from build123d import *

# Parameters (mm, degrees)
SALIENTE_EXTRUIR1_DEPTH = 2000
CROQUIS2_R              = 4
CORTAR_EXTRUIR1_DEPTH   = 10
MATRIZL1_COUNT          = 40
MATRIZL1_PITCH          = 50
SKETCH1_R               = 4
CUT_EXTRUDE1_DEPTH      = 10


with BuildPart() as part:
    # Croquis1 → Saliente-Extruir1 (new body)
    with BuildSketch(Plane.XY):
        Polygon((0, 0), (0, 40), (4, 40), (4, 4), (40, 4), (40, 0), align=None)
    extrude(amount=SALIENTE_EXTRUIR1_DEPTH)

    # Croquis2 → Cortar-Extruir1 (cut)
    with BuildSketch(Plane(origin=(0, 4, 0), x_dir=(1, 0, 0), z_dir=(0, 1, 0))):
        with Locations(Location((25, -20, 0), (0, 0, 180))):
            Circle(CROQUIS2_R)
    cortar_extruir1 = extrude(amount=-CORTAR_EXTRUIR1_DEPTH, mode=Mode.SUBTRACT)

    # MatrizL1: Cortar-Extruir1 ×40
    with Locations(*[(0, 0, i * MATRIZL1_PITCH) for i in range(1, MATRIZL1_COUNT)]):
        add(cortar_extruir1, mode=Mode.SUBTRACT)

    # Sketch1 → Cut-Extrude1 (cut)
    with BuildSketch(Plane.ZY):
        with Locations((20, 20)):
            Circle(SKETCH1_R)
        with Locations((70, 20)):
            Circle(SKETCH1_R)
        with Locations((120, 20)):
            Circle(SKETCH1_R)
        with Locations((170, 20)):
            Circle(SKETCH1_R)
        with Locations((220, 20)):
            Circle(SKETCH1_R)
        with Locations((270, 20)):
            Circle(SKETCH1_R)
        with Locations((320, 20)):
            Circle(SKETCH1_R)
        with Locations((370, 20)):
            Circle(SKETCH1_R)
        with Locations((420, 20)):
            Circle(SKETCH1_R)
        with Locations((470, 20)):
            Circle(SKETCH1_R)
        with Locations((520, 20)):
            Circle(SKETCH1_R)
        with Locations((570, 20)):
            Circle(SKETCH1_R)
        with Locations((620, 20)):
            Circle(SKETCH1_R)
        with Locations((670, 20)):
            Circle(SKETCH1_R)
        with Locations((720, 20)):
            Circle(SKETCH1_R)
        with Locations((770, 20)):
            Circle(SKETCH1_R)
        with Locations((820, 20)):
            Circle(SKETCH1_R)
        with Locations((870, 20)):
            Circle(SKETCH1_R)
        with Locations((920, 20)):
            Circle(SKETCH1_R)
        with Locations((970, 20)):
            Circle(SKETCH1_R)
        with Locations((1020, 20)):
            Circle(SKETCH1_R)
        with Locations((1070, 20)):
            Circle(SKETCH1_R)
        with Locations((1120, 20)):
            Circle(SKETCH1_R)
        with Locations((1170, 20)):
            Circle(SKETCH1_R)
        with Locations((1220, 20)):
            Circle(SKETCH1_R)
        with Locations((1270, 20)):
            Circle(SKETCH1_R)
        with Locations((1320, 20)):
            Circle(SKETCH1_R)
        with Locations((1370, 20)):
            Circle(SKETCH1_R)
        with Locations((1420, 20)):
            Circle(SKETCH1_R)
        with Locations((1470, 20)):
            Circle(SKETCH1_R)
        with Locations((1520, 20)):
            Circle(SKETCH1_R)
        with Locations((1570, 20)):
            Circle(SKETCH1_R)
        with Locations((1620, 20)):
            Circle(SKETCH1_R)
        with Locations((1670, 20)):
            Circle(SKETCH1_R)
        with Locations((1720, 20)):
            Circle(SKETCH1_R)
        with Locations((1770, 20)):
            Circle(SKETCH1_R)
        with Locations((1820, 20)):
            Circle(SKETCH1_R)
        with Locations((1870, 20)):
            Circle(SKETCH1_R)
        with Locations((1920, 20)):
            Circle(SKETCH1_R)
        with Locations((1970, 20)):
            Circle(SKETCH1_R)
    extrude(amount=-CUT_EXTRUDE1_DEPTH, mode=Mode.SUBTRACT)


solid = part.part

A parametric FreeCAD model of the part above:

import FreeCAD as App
import Part
import Sketcher
Q = App.Units.Quantity

doc = App.newDocument("Part")
body = doc.addObject("PartDesign::Body", "Body")

sketch1 = doc.addObject("Sketcher::SketchObject", "Sketch")
body.addObject(sketch1)
sketch1.AttachmentSupport = (doc.XY_Plane, [""])
sketch1.MapMode = "FlatFace"
sketch1.addGeometry([
    Part.LineSegment(App.Vector(0, 40, 0), App.Vector(0, 0, 0)),
    Part.LineSegment(App.Vector(0, 0, 0), App.Vector(40, 0, 0)),
    Part.LineSegment(App.Vector(40, 0, 0), App.Vector(40, 4, 0)),
    Part.LineSegment(App.Vector(40, 4, 0), App.Vector(4, 4, 0)),
    Part.LineSegment(App.Vector(4, 4, 0), App.Vector(4, 40, 0)),
    Part.LineSegment(App.Vector(4, 40, 0), App.Vector(0, 40, 0)),
], False)
sketch1.addConstraint([
    Sketcher.Constraint("Coincident", 0, 2, 1, 1),
    Sketcher.Constraint("Coincident", 1, 2, 2, 1),
    Sketcher.Constraint("Coincident", 2, 2, 3, 1),
    Sketcher.Constraint("Coincident", 3, 2, 4, 1),
    Sketcher.Constraint("Coincident", 4, 2, 5, 1),
    Sketcher.Constraint("Coincident", 5, 2, 0, 1),
    Sketcher.Constraint("Vertical", 0),
    Sketcher.Constraint("Horizontal", 1),
    Sketcher.Constraint("Vertical", 2),
    Sketcher.Constraint("Horizontal", 3),
    Sketcher.Constraint("Vertical", 4),
    Sketcher.Constraint("Horizontal", 5),
    Sketcher.Constraint("Coincident", 0, 2, -1, 1),
    Sketcher.Constraint("Equal", 1, 0),
    Sketcher.Constraint("Equal", 5, 2),
    Sketcher.Constraint("DistanceX", 1, 1, 1, 2, Q("40 mm")),
    Sketcher.Constraint("DistanceX", 3, 2, 3, 1, Q("36 mm")),
])
pad1 = doc.addObject("PartDesign::Pad", "Pad")
body.addObject(pad1)
pad1.Profile = sketch1
pad1.Length = 2000

sketch2 = doc.addObject("Sketcher::SketchObject", "Sketch001")
body.addObject(sketch2)
sketch2.AttachmentSupport = (doc.XZ_Plane, [""])
sketch2.MapMode = "FlatFace"
sketch2.AttachmentOffset = App.Placement(App.Vector(0, 0, -4), App.Rotation())
sketch2.addGeometry(Part.Circle(App.Vector(25, 20, 0), App.Vector(0, 0, 1), 4), False)
sketch2.addConstraint([
    Sketcher.Constraint("Diameter", 0, Q("8 mm")),
    Sketcher.Constraint("DistanceX", -1, 1, 0, 3, Q("25 mm")),
    Sketcher.Constraint("DistanceY", -1, 1, 0, 3, Q("20 mm")),
])
pocket1 = doc.addObject("PartDesign::Pocket", "Pocket")
body.addObject(pocket1)
pocket1.Profile = sketch2
pocket1.Length = 10
pocket1.Reversed = True
doc.recompute()

linearpattern = doc.addObject("PartDesign::LinearPattern", "LinearPattern")
body.addObject(linearpattern)
linearpattern.Originals = [pocket1]
linearpattern.Direction = (doc.Z_Axis, [""])
linearpattern.Mode = "offset"
linearpattern.Offset = 50
linearpattern.Occurrences = 40
body.Tip = linearpattern

sketch3 = doc.addObject("Sketcher::SketchObject", "Sketch002")
body.addObject(sketch3)
sketch3.AttachmentSupport = (doc.YZ_Plane, [""])
sketch3.MapMode = "FlatFace"
sketch3.addGeometry([
    Part.Circle(App.Vector(20, 20, 0), App.Vector(0, 0, 1), 4),
    Part.Circle(App.Vector(20, 70, 0), App.Vector(0, 0, 1), 4),
    Part.Circle(App.Vector(20, 120, 0), App.Vector(0, 0, 1), 4),
    Part.Circle(App.Vector(20, 170, 0), App.Vector(0, 0, 1), 4),
    Part.Circle(App.Vector(20, 220, 0), App.Vector(0, 0, 1), 4),
    Part.Circle(App.Vector(20, 270, 0), App.Vector(0, 0, 1), 4),
    Part.Circle(App.Vector(20, 320, 0), App.Vector(0, 0, 1), 4),
    Part.Circle(App.Vector(20, 370, 0), App.Vector(0, 0, 1), 4),
    Part.Circle(App.Vector(20, 420, 0), App.Vector(0, 0, 1), 4),
    Part.Circle(App.Vector(20, 470, 0), App.Vector(0, 0, 1), 4),
    Part.Circle(App.Vector(20, 520, 0), App.Vector(0, 0, 1), 4),
    Part.Circle(App.Vector(20, 570, 0), App.Vector(0, 0, 1), 4),
    Part.Circle(App.Vector(20, 620, 0), App.Vector(0, 0, 1), 4),
    Part.Circle(App.Vector(20, 670, 0), App.Vector(0, 0, 1), 4),
    Part.Circle(App.Vector(20, 720, 0), App.Vector(0, 0, 1), 4),
    Part.Circle(App.Vector(20, 770, 0), App.Vector(0, 0, 1), 4),
    Part.Circle(App.Vector(20, 820, 0), App.Vector(0, 0, 1), 4),
    Part.Circle(App.Vector(20, 870, 0), App.Vector(0, 0, 1), 4),
    Part.Circle(App.Vector(20, 920, 0), App.Vector(0, 0, 1), 4),
    Part.Circle(App.Vector(20, 970, 0), App.Vector(0, 0, 1), 4),
    Part.Circle(App.Vector(20, 1020, 0), App.Vector(0, 0, 1), 4),
    Part.Circle(App.Vector(20, 1070, 0), App.Vector(0, 0, 1), 4),
    Part.Circle(App.Vector(20, 1120, 0), App.Vector(0, 0, 1), 4),
    Part.Circle(App.Vector(20, 1170, 0), App.Vector(0, 0, 1), 4),
    Part.Circle(App.Vector(20, 1220, 0), App.Vector(0, 0, 1), 4),
    Part.Circle(App.Vector(20, 1270, 0), App.Vector(0, 0, 1), 4),
    Part.Circle(App.Vector(20, 1320, 0), App.Vector(0, 0, 1), 4),
    Part.Circle(App.Vector(20, 1370, 0), App.Vector(0, 0, 1), 4),
    Part.Circle(App.Vector(20, 1420, 0), App.Vector(0, 0, 1), 4),
    Part.Circle(App.Vector(20, 1470, 0), App.Vector(0, 0, 1), 4),
    Part.Circle(App.Vector(20, 1520, 0), App.Vector(0, 0, 1), 4),
    Part.Circle(App.Vector(20, 1570, 0), App.Vector(0, 0, 1), 4),
    Part.Circle(App.Vector(20, 1620, 0), App.Vector(0, 0, 1), 4),
    Part.Circle(App.Vector(20, 1670, 0), App.Vector(0, 0, 1), 4),
    Part.Circle(App.Vector(20, 1720, 0), App.Vector(0, 0, 1), 4),
    Part.Circle(App.Vector(20, 1770, 0), App.Vector(0, 0, 1), 4),
    Part.Circle(App.Vector(20, 1820, 0), App.Vector(0, 0, 1), 4),
    Part.Circle(App.Vector(20, 1870, 0), App.Vector(0, 0, 1), 4),
    Part.Circle(App.Vector(20, 1920, 0), App.Vector(0, 0, 1), 4),
    Part.Circle(App.Vector(20, 1970, 0), App.Vector(0, 0, 1), 4),
], False)
sketch3.addConstraint([
    Sketcher.Constraint("Equal", 0, 1),
    Sketcher.Constraint("Equal", 1, 2),
    Sketcher.Constraint("Equal", 2, 3),
    Sketcher.Constraint("Equal", 3, 4),
    Sketcher.Constraint("Equal", 4, 5),
    Sketcher.Constraint("Equal", 5, 6),
    Sketcher.Constraint("Equal", 6, 7),
    Sketcher.Constraint("Equal", 7, 8),
    Sketcher.Constraint("Equal", 8, 9),
    Sketcher.Constraint("Equal", 9, 10),
    Sketcher.Constraint("Equal", 10, 11),
    Sketcher.Constraint("Equal", 11, 12),
    Sketcher.Constraint("Equal", 12, 13),
    Sketcher.Constraint("Equal", 13, 14),
    Sketcher.Constraint("Equal", 14, 15),
    Sketcher.Constraint("Equal", 15, 16),
    Sketcher.Constraint("Equal", 16, 17),
    Sketcher.Constraint("Equal", 17, 18),
    Sketcher.Constraint("Equal", 18, 19),
    Sketcher.Constraint("Equal", 19, 20),
    Sketcher.Constraint("Equal", 20, 21),
    Sketcher.Constraint("Equal", 21, 22),
    Sketcher.Constraint("Equal", 22, 23),
    Sketcher.Constraint("Equal", 23, 24),
    Sketcher.Constraint("Equal", 24, 25),
    Sketcher.Constraint("Equal", 25, 26),
    Sketcher.Constraint("Equal", 26, 27),
    Sketcher.Constraint("Equal", 27, 28),
    Sketcher.Constraint("Equal", 28, 29),
    Sketcher.Constraint("Equal", 29, 30),
    Sketcher.Constraint("Equal", 30, 31),
    Sketcher.Constraint("Equal", 31, 32),
    Sketcher.Constraint("Equal", 32, 33),
    Sketcher.Constraint("Equal", 33, 34),
    Sketcher.Constraint("Equal", 34, 35),
    Sketcher.Constraint("Equal", 35, 36),
    Sketcher.Constraint("Equal", 36, 37),
    Sketcher.Constraint("Equal", 37, 38),
    Sketcher.Constraint("Equal", 38, 39),
    Sketcher.Constraint("Vertical", 0, 3, 1, 3),
    Sketcher.Constraint("Vertical", 1, 3, 2, 3),
    Sketcher.Constraint("Vertical", 2, 3, 3, 3),
    Sketcher.Constraint("Vertical", 3, 3, 4, 3),
    Sketcher.Constraint("Vertical", 4, 3, 5, 3),
    Sketcher.Constraint("Vertical", 5, 3, 6, 3),
    Sketcher.Constraint("Vertical", 6, 3, 7, 3),
    Sketcher.Constraint("Vertical", 7, 3, 8, 3),
    Sketcher.Constraint("Vertical", 8, 3, 9, 3),
    Sketcher.Constraint("Vertical", 9, 3, 10, 3),
    Sketcher.Constraint("Vertical", 10, 3, 11, 3),
    Sketcher.Constraint("Vertical", 11, 3, 12, 3),
    Sketcher.Constraint("Vertical", 12, 3, 13, 3),
    Sketcher.Constraint("Vertical", 13, 3, 14, 3),
    Sketcher.Constraint("Vertical", 14, 3, 15, 3),
    Sketcher.Constraint("Vertical", 15, 3, 16, 3),
    Sketcher.Constraint("Vertical", 16, 3, 17, 3),
    Sketcher.Constraint("Vertical", 17, 3, 18, 3),
    Sketcher.Constraint("Vertical", 18, 3, 19, 3),
    Sketcher.Constraint("Vertical", 19, 3, 20, 3),
    Sketcher.Constraint("Vertical", 20, 3, 21, 3),
    Sketcher.Constraint("Vertical", 21, 3, 22, 3),
    Sketcher.Constraint("Vertical", 22, 3, 23, 3),
    Sketcher.Constraint("Vertical", 23, 3, 24, 3),
    Sketcher.Constraint("Vertical", 24, 3, 25, 3),
    Sketcher.Constraint("Vertical", 25, 3, 26, 3),
    Sketcher.Constraint("Vertical", 26, 3, 27, 3),
    Sketcher.Constraint("Vertical", 27, 3, 28, 3),
    Sketcher.Constraint("Vertical", 28, 3, 29, 3),
    Sketcher.Constraint("Vertical", 29, 3, 30, 3),
    Sketcher.Constraint("Vertical", 30, 3, 31, 3),
    Sketcher.Constraint("Vertical", 31, 3, 32, 3),
    Sketcher.Constraint("Vertical", 32, 3, 33, 3),
    Sketcher.Constraint("Vertical", 33, 3, 34, 3),
    Sketcher.Constraint("Vertical", 34, 3, 35, 3),
    Sketcher.Constraint("Vertical", 35, 3, 36, 3),
    Sketcher.Constraint("Vertical", 36, 3, 37, 3),
    Sketcher.Constraint("Vertical", 37, 3, 38, 3),
    Sketcher.Constraint("Vertical", 38, 3, 39, 3),
    Sketcher.Constraint("Diameter", 0, Q("8 mm")),
    Sketcher.Constraint("DistanceX", -1, 1, 0, 3, Q("20 mm")),
    Sketcher.Constraint("DistanceY", -1, 1, 0, 3, Q("20 mm")),
    Sketcher.Constraint("DistanceY", -1, 1, 1, 3, Q("70 mm")),
    Sketcher.Constraint("DistanceY", -1, 1, 2, 3, Q("120 mm")),
    Sketcher.Constraint("DistanceY", -1, 1, 3, 3, Q("170 mm")),
    Sketcher.Constraint("DistanceY", -1, 1, 4, 3, Q("220 mm")),
    Sketcher.Constraint("DistanceY", -1, 1, 5, 3, Q("270 mm")),
    Sketcher.Constraint("DistanceY", -1, 1, 6, 3, Q("320 mm")),
    Sketcher.Constraint("DistanceY", -1, 1, 7, 3, Q("370 mm")),
    Sketcher.Constraint("DistanceY", -1, 1, 8, 3, Q("420 mm")),
    Sketcher.Constraint("DistanceY", -1, 1, 9, 3, Q("470 mm")),
    Sketcher.Constraint("DistanceY", -1, 1, 10, 3, Q("520 mm")),
    Sketcher.Constraint("DistanceY", -1, 1, 11, 3, Q("570 mm")),
    Sketcher.Constraint("DistanceY", -1, 1, 12, 3, Q("620 mm")),
    Sketcher.Constraint("DistanceY", -1, 1, 13, 3, Q("670 mm")),
    Sketcher.Constraint("DistanceY", -1, 1, 14, 3, Q("720 mm")),
    Sketcher.Constraint("DistanceY", -1, 1, 15, 3, Q("770 mm")),
    Sketcher.Constraint("DistanceY", -1, 1, 16, 3, Q("820 mm")),
    Sketcher.Constraint("DistanceY", -1, 1, 17, 3, Q("870 mm")),
    Sketcher.Constraint("DistanceY", -1, 1, 18, 3, Q("920 mm")),
    Sketcher.Constraint("DistanceY", -1, 1, 19, 3, Q("970 mm")),
    Sketcher.Constraint("DistanceY", -1, 1, 20, 3, Q("1020 mm")),
    Sketcher.Constraint("DistanceY", -1, 1, 21, 3, Q("1070 mm")),
    Sketcher.Constraint("DistanceY", -1, 1, 22, 3, Q("1120 mm")),
    Sketcher.Constraint("DistanceY", -1, 1, 23, 3, Q("1170 mm")),
    Sketcher.Constraint("DistanceY", -1, 1, 24, 3, Q("1220 mm")),
    Sketcher.Constraint("DistanceY", -1, 1, 25, 3, Q("1270 mm")),
    Sketcher.Constraint("DistanceY", -1, 1, 26, 3, Q("1320 mm")),
    Sketcher.Constraint("DistanceY", -1, 1, 27, 3, Q("1370 mm")),
    Sketcher.Constraint("DistanceY", -1, 1, 28, 3, Q("1420 mm")),
    Sketcher.Constraint("DistanceY", -1, 1, 29, 3, Q("1470 mm")),
    Sketcher.Constraint("DistanceY", -1, 1, 30, 3, Q("1520 mm")),
    Sketcher.Constraint("DistanceY", -1, 1, 31, 3, Q("1570 mm")),
    Sketcher.Constraint("DistanceY", -1, 1, 32, 3, Q("1620 mm")),
    Sketcher.Constraint("DistanceY", -1, 1, 33, 3, Q("1670 mm")),
    Sketcher.Constraint("DistanceY", -1, 1, 34, 3, Q("1720 mm")),
    Sketcher.Constraint("DistanceY", -1, 1, 35, 3, Q("1770 mm")),
    Sketcher.Constraint("DistanceY", -1, 1, 36, 3, Q("1820 mm")),
    Sketcher.Constraint("DistanceY", -1, 1, 37, 3, Q("1870 mm")),
    Sketcher.Constraint("DistanceY", -1, 1, 38, 3, Q("1920 mm")),
    Sketcher.Constraint("DistanceY", -1, 1, 39, 3, Q("1970 mm")),
])
pocket2 = doc.addObject("PartDesign::Pocket", "Pocket001")
body.addObject(pocket2)
pocket2.Profile = sketch3
pocket2.Length = 10
pocket2.Reversed = True

doc.recompute()
